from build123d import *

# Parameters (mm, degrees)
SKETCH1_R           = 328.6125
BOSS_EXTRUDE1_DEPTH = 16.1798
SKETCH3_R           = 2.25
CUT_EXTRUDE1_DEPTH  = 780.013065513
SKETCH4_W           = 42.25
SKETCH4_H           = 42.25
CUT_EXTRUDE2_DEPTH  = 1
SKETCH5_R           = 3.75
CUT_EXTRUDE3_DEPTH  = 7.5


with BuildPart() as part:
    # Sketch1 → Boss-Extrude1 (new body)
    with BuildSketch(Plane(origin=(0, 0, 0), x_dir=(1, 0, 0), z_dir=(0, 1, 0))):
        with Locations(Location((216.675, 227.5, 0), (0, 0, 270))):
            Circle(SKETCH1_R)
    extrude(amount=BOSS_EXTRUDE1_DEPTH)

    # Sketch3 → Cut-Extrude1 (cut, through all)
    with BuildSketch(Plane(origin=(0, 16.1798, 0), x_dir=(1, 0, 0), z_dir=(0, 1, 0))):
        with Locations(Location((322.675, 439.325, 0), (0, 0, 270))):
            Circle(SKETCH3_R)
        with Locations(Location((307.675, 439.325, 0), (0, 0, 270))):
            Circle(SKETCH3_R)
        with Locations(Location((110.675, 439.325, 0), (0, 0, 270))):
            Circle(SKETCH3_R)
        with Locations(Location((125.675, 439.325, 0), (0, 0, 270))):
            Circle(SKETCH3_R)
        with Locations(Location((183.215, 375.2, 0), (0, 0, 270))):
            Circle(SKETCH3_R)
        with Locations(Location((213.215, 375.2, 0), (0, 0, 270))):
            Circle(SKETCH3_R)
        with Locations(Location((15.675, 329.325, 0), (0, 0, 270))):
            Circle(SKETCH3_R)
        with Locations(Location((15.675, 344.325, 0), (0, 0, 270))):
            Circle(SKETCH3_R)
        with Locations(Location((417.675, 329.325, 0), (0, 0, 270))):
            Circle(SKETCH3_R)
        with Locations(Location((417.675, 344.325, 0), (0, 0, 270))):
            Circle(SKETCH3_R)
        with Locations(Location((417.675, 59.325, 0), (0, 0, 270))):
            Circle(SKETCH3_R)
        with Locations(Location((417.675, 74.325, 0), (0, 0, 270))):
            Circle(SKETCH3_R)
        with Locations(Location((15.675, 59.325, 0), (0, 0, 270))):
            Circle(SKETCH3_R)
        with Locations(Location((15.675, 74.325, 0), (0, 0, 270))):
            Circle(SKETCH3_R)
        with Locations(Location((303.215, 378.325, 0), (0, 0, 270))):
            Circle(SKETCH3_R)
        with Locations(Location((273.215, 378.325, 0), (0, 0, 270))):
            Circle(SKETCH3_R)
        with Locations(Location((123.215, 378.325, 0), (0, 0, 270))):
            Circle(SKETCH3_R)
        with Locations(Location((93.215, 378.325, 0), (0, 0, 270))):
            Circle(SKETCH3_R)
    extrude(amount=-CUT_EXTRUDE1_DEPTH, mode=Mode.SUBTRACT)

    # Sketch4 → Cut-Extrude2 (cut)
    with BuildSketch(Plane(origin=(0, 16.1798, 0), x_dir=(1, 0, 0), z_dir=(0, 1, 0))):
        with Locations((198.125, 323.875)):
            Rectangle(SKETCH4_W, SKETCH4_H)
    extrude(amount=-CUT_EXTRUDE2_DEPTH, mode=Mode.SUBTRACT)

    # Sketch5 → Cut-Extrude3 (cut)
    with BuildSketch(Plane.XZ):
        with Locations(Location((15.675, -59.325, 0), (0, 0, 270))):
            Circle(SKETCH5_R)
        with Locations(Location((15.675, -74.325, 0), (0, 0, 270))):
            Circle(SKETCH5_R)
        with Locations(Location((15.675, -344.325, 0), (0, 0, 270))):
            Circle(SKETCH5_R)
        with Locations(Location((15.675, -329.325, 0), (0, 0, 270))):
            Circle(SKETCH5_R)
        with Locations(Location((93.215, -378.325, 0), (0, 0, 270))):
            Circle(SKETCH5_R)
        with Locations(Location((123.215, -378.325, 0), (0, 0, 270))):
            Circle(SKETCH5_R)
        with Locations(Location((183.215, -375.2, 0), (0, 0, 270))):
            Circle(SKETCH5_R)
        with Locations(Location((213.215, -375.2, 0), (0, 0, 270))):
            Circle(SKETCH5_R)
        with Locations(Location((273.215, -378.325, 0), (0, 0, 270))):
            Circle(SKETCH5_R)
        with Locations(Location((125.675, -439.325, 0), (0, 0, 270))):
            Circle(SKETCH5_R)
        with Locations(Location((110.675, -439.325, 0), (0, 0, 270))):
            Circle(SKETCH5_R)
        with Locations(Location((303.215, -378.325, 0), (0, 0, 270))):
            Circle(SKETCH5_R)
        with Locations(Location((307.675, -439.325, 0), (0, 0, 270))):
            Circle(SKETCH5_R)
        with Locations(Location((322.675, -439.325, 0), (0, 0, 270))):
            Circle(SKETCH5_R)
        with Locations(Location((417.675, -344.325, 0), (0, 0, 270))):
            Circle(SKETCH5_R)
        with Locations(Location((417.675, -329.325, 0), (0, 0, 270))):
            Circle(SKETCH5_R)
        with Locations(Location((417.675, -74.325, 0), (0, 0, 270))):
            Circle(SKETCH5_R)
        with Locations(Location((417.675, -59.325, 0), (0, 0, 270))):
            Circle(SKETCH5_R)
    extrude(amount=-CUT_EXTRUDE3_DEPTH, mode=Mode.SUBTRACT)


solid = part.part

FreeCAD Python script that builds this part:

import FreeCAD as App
import Part
import Sketcher

V = App.Vector
Q = App.Units.Quantity

doc = App.newDocument("Part")
body = doc.addObject("PartDesign::Body", "Body")

sketch1 = doc.addObject("Sketcher::SketchObject", "Sketch")
body.addObject(sketch1)
sketch1.AttachmentSupport = (doc.XZ_Plane, [""])
sketch1.MapMode = "FlatFace"
sketch1.addGeometry(Part.Circle(V(216.675, -227.5, 0), V(0, 0, 1), 328.6125), False)
sketch1.addConstraint([
    Sketcher.Constraint("Diameter", 0, Q("657.225 mm")),
    Sketcher.Constraint("DistanceY", 0, 3, -1, 1, Q("227.5 mm")),
    Sketcher.Constraint("DistanceX", -1, 1, 0, 3, Q("216.675 mm")),
])
pad1 = doc.addObject("PartDesign::Pad", "Pad")
body.addObject(pad1)
pad1.Profile = sketch1
pad1.Length = 16.1798
pad1.Reversed = True

sketch2 = doc.addObject("Sketcher::SketchObject", "Sketch001")
body.addObject(sketch2)
sketch2.AttachmentSupport = (doc.XZ_Plane, [""])
sketch2.MapMode = "FlatFace"
sketch2.AttachmentOffset = App.Placement(V(0, 0, -16.1798), App.Rotation())
sketch2.addGeometry([
    Part.Circle(V(322.675, -439.325, 0), V(0, 0, 1), 2.25),
    Part.Circle(V(307.675, -439.325, 0), V(0, 0, 1), 2.25),
    Part.Circle(V(110.675, -439.325, 0), V(0, 0, 1), 2.25),
    Part.Circle(V(125.675, -439.325, 0), V(0, 0, 1), 2.25),
    Part.Circle(V(183.215, -375.2, 0), V(0, 0, 1), 2.25),
    Part.Circle(V(213.215, -375.2, 0), V(0, 0, 1), 2.25),
    Part.Circle(V(15.675, -329.325, 0), V(0, 0, 1), 2.25),
    Part.Circle(V(15.675, -344.325, 0), V(0, 0, 1), 2.25),
    Part.Circle(V(417.675, -329.325, 0), V(0, 0, 1), 2.25),
    Part.Circle(V(417.675, -344.325, 0), V(0, 0, 1), 2.25),
    Part.Circle(V(417.675, -59.325, 0), V(0, 0, 1), 2.25),
    Part.Circle(V(417.675, -74.325, 0), V(0, 0, 1), 2.25),
    Part.Circle(V(15.675, -59.325, 0), V(0, 0, 1), 2.25),
    Part.Circle(V(15.675, -74.325, 0), V(0, 0, 1), 2.25),
    Part.Circle(V(303.215, -378.325, 0), V(0, 0, 1), 2.25),
    Part.Circle(V(273.215, -378.325, 0), V(0, 0, 1), 2.25),
    Part.Circle(V(123.215, -378.325, 0), V(0, 0, 1), 2.25),
    Part.Circle(V(93.215, -378.325, 0), V(0, 0, 1), 2.25),
], False)
sketch2.addConstraint([
    Sketcher.Constraint("Equal", 0, 1),
    Sketcher.Constraint("Equal", 1, 2),
    Sketcher.Constraint("Equal", 2, 3),
    Sketcher.Constraint("Equal", 3, 4),
    Sketcher.Constraint("Equal", 4, 5),
    Sketcher.Constraint("Equal", 5, 6),
    Sketcher.Constraint("Equal", 6, 7),
    Sketcher.Constraint("Equal", 7, 8),
    Sketcher.Constraint("Equal", 8, 9),
    Sketcher.Constraint("Equal", 9, 10),
    Sketcher.Constraint("Equal", 10, 11),
    Sketcher.Constraint("Equal", 11, 12),
    Sketcher.Constraint("Equal", 12, 13),
    Sketcher.Constraint("Equal", 13, 14),
    Sketcher.Constraint("Equal", 14, 15),
    Sketcher.Constraint("Equal", 15, 16),
    Sketcher.Constraint("Equal", 16, 17),
    Sketcher.Constraint("Horizontal", 0, 3, 1, 3),
    Sketcher.Constraint("Horizontal", 1, 3, 2, 3),
    Sketcher.Constraint("Horizontal", 2, 3, 3, 3),
    Sketcher.Constraint("Horizontal", 4, 3, 5, 3),
    Sketcher.Constraint("Horizontal", 6, 3, 8, 3),
    Sketcher.Constraint("Horizontal", 7, 3, 9, 3),
    Sketcher.Constraint("Horizontal", 10, 3, 12, 3),
    Sketcher.Constraint("Horizontal", 11, 3, 13, 3),
    Sketcher.Constraint("Horizontal", 14, 3, 15, 3),
    Sketcher.Constraint("Horizontal", 15, 3, 16, 3),
    Sketcher.Constraint("Horizontal", 16, 3, 17, 3),
    Sketcher.Constraint("Vertical", 6, 3, 7, 3),
    Sketcher.Constraint("Vertical", 8, 3, 9, 3),
    Sketcher.Constraint("Vertical", 9, 3, 10, 3),
    Sketcher.Constraint("Vertical", 10, 3, 11, 3),
    Sketcher.Constraint("Vertical", 7, 3, 12, 3),
    Sketcher.Constraint("Vertical", 12, 3, 13, 3),
    Sketcher.Constraint("Diameter", 0, Q("4.5 mm")),
    Sketcher.Constraint("DistanceX", 1, 3, 0, 3, Q("15 mm")),
    Sketcher.Constraint("DistanceX", 2, 3, 1, 3, Q("197 mm")),
    Sketcher.Constraint("DistanceX", 2, 3, 3, 3, Q("15 mm")),
    Sketcher.Constraint("DistanceX", 4, 3, 5, 3, Q("30 mm")),
    Sketcher.Constraint("DistanceX", 6, 3, 2, 3, Q("95 mm")),
    Sketcher.Constraint("DistanceY", 2, 3, 6, 3, Q("110 mm")),
    Sketcher.Constraint("DistanceY", 7, 3, 6, 3, Q("15 mm")),
    Sketcher.Constraint("DistanceX", 0, 3, 8, 3, Q("95 mm")),
    Sketcher.Constraint("DistanceY", 8, 3, 10, 3, Q("270 mm")),
    Sketcher.Constraint("DistanceY", 11, 3, 10, 3, Q("15 mm")),
    Sketcher.Constraint("DistanceY", 1, 3, 14, 3, Q("61 mm")),
    Sketcher.Constraint("DistanceX", 5, 3, 14, 3, Q("90 mm")),
    Sketcher.Constraint("DistanceX", 15, 3, 14, 3, Q("30 mm")),
    Sketcher.Constraint("DistanceX", 16, 3, 4, 3, Q("60 mm")),
    Sketcher.Constraint("DistanceX", 17, 3, 16, 3, Q("30 mm")),
    Sketcher.Constraint("DistanceY", 4, 3, -1, 1, Q("375.2 mm")),
    Sketcher.Constraint("DistanceX", 3, 3, 4, 3, Q("57.54 mm")),
    Sketcher.Constraint("DistanceX", -1, 1, 0, 3, Q("322.675 mm")),
    Sketcher.Constraint("DistanceY", 0, 3, -1, 1, Q("439.325 mm")),
])
pocket1 = doc.addObject("PartDesign::Pocket", "Pocket")
body.addObject(pocket1)
pocket1.Profile = sketch2
pocket1.Type = "ThroughAll"
pocket1.Reversed = True

sketch3 = doc.addObject("Sketcher::SketchObject", "Sketch002")
body.addObject(sketch3)
sketch3.AttachmentSupport = (doc.XZ_Plane, [""])
sketch3.MapMode = "FlatFace"
sketch3.AttachmentOffset = App.Placement(V(0, 0, -16.1798), App.Rotation())
sketch3.addGeometry([
    Part.LineSegment(V(177, -345, 0), V(177, -302.75, 0)),
    Part.LineSegment(V(177, -302.75, 0), V(219.25, -302.75, 0)),
    Part.LineSegment(V(219.25, -302.75, 0), V(219.25, -345, 0)),
    Part.LineSegment(V(219.25, -345, 0), V(177, -345, 0)),
], False)
sketch3.addConstraint([
    Sketcher.Constraint("Coincident", 0, 2, 1, 1),
    Sketcher.Constraint("Coincident", 1, 2, 2, 1),
    Sketcher.Constraint("Coincident", 2, 2, 3, 1),
    Sketcher.Constraint("Coincident", 3, 2, 0, 1),
    Sketcher.Constraint("Vertical", 0),
    Sketcher.Constraint("Horizontal", 1),
    Sketcher.Constraint("Vertical", 2),
    Sketcher.Constraint("Horizontal", 3),
    Sketcher.Constraint("Equal", 3, 0),
    Sketcher.Constraint("DistanceX", -1, 1, 0, 2, Q("177 mm")),
    Sketcher.Constraint("DistanceY", 2, 2, -1, 1, Q("345 mm")),
    Sketcher.Constraint("DistanceX", 1, 1, 1, 2, Q("42.25 mm")),
])
pocket2 = doc.addObject("PartDesign::Pocket", "Pocket001")
body.addObject(pocket2)
pocket2.Profile = sketch3
pocket2.Length = 1
pocket2.Reversed = True

sketch4 = doc.addObject("Sketcher::SketchObject", "Sketch003")
body.addObject(sketch4)
sketch4.AttachmentSupport = (doc.XZ_Plane, [""])
sketch4.MapMode = "FlatFace"
sketch4.addGeometry([
    Part.Circle(V(15.675, -59.325, 0), V(0, 0, 1), 3.75),
    Part.Circle(V(15.675, -74.325, 0), V(0, 0, 1), 3.75),
    Part.Circle(V(15.675, -344.325, 0), V(0, 0, 1), 3.75),
    Part.Circle(V(15.675, -329.325, 0), V(0, 0, 1), 3.75),
    Part.Circle(V(93.215, -378.325, 0), V(0, 0, 1), 3.75),
    Part.Circle(V(123.215, -378.325, 0), V(0, 0, 1), 3.75),
    Part.Circle(V(183.215, -375.2, 0), V(0, 0, 1), 3.75),
    Part.Circle(V(213.215, -375.2, 0), V(0, 0, 1), 3.75),
    Part.Circle(V(273.215, -378.325, 0), V(0, 0, 1), 3.75),
    Part.Circle(V(125.675, -439.325, 0), V(0, 0, 1), 3.75),
    Part.Circle(V(110.675, -439.325, 0), V(0, 0, 1), 3.75),
    Part.Circle(V(303.215, -378.325, 0), V(0, 0, 1), 3.75),
    Part.Circle(V(307.675, -439.325, 0), V(0, 0, 1), 3.75),
    Part.Circle(V(322.675, -439.325, 0), V(0, 0, 1), 3.75),
    Part.Circle(V(417.675, -344.325, 0), V(0, 0, 1), 3.75),
    Part.Circle(V(417.675, -329.325, 0), V(0, 0, 1), 3.75),
    Part.Circle(V(417.675, -74.325, 0), V(0, 0, 1), 3.75),
    Part.Circle(V(417.675, -59.325, 0), V(0, 0, 1), 3.75),
], False)
sketch4.addConstraint([
    Sketcher.Constraint("Equal", 0, 1),
    Sketcher.Constraint("Equal", 1, 2),
    Sketcher.Constraint("Equal", 2, 3),
    Sketcher.Constraint("Equal", 3, 4),
    Sketcher.Constraint("Equal", 4, 5),
    Sketcher.Constraint("Equal", 5, 6),
    Sketcher.Constraint("Equal", 6, 7),
    Sketcher.Constraint("Equal", 7, 8),
    Sketcher.Constraint("Equal", 8, 9),
    Sketcher.Constraint("Equal", 9, 10),
    Sketcher.Constraint("Equal", 10, 11),
    Sketcher.Constraint("Equal", 11, 12),
    Sketcher.Constraint("Equal", 12, 13),
    Sketcher.Constraint("Equal", 13, 14),
    Sketcher.Constraint("Equal", 14, 15),
    Sketcher.Constraint("Equal", 15, 16),
    Sketcher.Constraint("Equal", 16, 17),
    Sketcher.Constraint("Horizontal", 4, 3, 5, 3),
    Sketcher.Constraint("Horizontal", 6, 3, 7, 3),
    Sketcher.Constraint("Horizontal", 5, 3, 8, 3),
    Sketcher.Constraint("Horizontal", 9, 3, 10, 3),
    Sketcher.Constraint("Horizontal", 8, 3, 11, 3),
    Sketcher.Constraint("Horizontal", 10, 3, 12, 3),
    Sketcher.Constraint("Horizontal", 12, 3, 13, 3),
    Sketcher.Constraint("Horizontal", 2, 3, 14, 3),
    Sketcher.Constraint("Horizontal", 3, 3, 15, 3),
    Sketcher.Constraint("Horizontal", 1, 3, 16, 3),
    Sketcher.Constraint("Horizontal", 0, 3, 17, 3),
    Sketcher.Constraint("Vertical", 0, 3, 1, 3),
    Sketcher.Constraint("Vertical", 1, 3, 2, 3),
    Sketcher.Constraint("Vertical", 2, 3, 3, 3),
    Sketcher.Constraint("Vertical", 14, 3, 15, 3),
    Sketcher.Constraint("Vertical", 15, 3, 16, 3),
    Sketcher.Constraint("Vertical", 16, 3, 17, 3),
    Sketcher.Constraint("Diameter", 0, Q("7.5 mm")),
    Sketcher.Constraint("DistanceY", 1, 3, 0, 3, Q("15 mm")),
    Sketcher.Constraint("DistanceY", 2, 3, 1, 3, Q("270 mm")),
    Sketcher.Constraint("DistanceY", 2, 3, 3, 3, Q("15 mm")),
    Sketcher.Constraint("DistanceY", 4, 3, 2, 3, Q("34 mm")),
    Sketcher.Constraint("DistanceX", 4, 3, 5, 3, Q("30 mm")),
    Sketcher.Constraint("DistanceX", 5, 3, 6, 3, Q("60 mm")),
    Sketcher.Constraint("DistanceX", 6, 3, 7, 3, Q("30 mm")),
    Sketcher.Constraint("DistanceX", 7, 3, 8, 3, Q("60 mm")),
    Sketcher.Constraint("DistanceY", 9, 3, 5, 3, Q("61 mm")),
    Sketcher.Constraint("DistanceX", 2, 3, 9, 3, Q("110 mm")),
    Sketcher.Constraint("DistanceX", 10, 3, 9, 3, Q("15 mm")),
    Sketcher.Constraint("DistanceX", 8, 3, 11, 3, Q("30 mm")),
    Sketcher.Constraint("DistanceX", 9, 3, 12, 3, Q("182 mm")),
    Sketcher.Constraint("DistanceX", 12, 3, 13, 3, Q("15 mm")),
    Sketcher.Constraint("DistanceX", 13, 3, 14, 3, Q("95 mm")),
    Sketcher.Constraint("DistanceY", 6, 3, -1, 1, Q("375.2 mm")),
    Sketcher.Constraint("DistanceX", 2, 3, 4, 3, Q("77.54 mm")),
    Sketcher.Constraint("DistanceX", -1, 1, 0, 3, Q("15.675 mm")),
    Sketcher.Constraint("DistanceY", 0, 3, -1, 1, Q("59.325 mm")),
])
pocket3 = doc.addObject("PartDesign::Pocket", "Pocket002")
body.addObject(pocket3)
pocket3.Profile = sketch4
pocket3.Length = 7.5

doc.recompute()
